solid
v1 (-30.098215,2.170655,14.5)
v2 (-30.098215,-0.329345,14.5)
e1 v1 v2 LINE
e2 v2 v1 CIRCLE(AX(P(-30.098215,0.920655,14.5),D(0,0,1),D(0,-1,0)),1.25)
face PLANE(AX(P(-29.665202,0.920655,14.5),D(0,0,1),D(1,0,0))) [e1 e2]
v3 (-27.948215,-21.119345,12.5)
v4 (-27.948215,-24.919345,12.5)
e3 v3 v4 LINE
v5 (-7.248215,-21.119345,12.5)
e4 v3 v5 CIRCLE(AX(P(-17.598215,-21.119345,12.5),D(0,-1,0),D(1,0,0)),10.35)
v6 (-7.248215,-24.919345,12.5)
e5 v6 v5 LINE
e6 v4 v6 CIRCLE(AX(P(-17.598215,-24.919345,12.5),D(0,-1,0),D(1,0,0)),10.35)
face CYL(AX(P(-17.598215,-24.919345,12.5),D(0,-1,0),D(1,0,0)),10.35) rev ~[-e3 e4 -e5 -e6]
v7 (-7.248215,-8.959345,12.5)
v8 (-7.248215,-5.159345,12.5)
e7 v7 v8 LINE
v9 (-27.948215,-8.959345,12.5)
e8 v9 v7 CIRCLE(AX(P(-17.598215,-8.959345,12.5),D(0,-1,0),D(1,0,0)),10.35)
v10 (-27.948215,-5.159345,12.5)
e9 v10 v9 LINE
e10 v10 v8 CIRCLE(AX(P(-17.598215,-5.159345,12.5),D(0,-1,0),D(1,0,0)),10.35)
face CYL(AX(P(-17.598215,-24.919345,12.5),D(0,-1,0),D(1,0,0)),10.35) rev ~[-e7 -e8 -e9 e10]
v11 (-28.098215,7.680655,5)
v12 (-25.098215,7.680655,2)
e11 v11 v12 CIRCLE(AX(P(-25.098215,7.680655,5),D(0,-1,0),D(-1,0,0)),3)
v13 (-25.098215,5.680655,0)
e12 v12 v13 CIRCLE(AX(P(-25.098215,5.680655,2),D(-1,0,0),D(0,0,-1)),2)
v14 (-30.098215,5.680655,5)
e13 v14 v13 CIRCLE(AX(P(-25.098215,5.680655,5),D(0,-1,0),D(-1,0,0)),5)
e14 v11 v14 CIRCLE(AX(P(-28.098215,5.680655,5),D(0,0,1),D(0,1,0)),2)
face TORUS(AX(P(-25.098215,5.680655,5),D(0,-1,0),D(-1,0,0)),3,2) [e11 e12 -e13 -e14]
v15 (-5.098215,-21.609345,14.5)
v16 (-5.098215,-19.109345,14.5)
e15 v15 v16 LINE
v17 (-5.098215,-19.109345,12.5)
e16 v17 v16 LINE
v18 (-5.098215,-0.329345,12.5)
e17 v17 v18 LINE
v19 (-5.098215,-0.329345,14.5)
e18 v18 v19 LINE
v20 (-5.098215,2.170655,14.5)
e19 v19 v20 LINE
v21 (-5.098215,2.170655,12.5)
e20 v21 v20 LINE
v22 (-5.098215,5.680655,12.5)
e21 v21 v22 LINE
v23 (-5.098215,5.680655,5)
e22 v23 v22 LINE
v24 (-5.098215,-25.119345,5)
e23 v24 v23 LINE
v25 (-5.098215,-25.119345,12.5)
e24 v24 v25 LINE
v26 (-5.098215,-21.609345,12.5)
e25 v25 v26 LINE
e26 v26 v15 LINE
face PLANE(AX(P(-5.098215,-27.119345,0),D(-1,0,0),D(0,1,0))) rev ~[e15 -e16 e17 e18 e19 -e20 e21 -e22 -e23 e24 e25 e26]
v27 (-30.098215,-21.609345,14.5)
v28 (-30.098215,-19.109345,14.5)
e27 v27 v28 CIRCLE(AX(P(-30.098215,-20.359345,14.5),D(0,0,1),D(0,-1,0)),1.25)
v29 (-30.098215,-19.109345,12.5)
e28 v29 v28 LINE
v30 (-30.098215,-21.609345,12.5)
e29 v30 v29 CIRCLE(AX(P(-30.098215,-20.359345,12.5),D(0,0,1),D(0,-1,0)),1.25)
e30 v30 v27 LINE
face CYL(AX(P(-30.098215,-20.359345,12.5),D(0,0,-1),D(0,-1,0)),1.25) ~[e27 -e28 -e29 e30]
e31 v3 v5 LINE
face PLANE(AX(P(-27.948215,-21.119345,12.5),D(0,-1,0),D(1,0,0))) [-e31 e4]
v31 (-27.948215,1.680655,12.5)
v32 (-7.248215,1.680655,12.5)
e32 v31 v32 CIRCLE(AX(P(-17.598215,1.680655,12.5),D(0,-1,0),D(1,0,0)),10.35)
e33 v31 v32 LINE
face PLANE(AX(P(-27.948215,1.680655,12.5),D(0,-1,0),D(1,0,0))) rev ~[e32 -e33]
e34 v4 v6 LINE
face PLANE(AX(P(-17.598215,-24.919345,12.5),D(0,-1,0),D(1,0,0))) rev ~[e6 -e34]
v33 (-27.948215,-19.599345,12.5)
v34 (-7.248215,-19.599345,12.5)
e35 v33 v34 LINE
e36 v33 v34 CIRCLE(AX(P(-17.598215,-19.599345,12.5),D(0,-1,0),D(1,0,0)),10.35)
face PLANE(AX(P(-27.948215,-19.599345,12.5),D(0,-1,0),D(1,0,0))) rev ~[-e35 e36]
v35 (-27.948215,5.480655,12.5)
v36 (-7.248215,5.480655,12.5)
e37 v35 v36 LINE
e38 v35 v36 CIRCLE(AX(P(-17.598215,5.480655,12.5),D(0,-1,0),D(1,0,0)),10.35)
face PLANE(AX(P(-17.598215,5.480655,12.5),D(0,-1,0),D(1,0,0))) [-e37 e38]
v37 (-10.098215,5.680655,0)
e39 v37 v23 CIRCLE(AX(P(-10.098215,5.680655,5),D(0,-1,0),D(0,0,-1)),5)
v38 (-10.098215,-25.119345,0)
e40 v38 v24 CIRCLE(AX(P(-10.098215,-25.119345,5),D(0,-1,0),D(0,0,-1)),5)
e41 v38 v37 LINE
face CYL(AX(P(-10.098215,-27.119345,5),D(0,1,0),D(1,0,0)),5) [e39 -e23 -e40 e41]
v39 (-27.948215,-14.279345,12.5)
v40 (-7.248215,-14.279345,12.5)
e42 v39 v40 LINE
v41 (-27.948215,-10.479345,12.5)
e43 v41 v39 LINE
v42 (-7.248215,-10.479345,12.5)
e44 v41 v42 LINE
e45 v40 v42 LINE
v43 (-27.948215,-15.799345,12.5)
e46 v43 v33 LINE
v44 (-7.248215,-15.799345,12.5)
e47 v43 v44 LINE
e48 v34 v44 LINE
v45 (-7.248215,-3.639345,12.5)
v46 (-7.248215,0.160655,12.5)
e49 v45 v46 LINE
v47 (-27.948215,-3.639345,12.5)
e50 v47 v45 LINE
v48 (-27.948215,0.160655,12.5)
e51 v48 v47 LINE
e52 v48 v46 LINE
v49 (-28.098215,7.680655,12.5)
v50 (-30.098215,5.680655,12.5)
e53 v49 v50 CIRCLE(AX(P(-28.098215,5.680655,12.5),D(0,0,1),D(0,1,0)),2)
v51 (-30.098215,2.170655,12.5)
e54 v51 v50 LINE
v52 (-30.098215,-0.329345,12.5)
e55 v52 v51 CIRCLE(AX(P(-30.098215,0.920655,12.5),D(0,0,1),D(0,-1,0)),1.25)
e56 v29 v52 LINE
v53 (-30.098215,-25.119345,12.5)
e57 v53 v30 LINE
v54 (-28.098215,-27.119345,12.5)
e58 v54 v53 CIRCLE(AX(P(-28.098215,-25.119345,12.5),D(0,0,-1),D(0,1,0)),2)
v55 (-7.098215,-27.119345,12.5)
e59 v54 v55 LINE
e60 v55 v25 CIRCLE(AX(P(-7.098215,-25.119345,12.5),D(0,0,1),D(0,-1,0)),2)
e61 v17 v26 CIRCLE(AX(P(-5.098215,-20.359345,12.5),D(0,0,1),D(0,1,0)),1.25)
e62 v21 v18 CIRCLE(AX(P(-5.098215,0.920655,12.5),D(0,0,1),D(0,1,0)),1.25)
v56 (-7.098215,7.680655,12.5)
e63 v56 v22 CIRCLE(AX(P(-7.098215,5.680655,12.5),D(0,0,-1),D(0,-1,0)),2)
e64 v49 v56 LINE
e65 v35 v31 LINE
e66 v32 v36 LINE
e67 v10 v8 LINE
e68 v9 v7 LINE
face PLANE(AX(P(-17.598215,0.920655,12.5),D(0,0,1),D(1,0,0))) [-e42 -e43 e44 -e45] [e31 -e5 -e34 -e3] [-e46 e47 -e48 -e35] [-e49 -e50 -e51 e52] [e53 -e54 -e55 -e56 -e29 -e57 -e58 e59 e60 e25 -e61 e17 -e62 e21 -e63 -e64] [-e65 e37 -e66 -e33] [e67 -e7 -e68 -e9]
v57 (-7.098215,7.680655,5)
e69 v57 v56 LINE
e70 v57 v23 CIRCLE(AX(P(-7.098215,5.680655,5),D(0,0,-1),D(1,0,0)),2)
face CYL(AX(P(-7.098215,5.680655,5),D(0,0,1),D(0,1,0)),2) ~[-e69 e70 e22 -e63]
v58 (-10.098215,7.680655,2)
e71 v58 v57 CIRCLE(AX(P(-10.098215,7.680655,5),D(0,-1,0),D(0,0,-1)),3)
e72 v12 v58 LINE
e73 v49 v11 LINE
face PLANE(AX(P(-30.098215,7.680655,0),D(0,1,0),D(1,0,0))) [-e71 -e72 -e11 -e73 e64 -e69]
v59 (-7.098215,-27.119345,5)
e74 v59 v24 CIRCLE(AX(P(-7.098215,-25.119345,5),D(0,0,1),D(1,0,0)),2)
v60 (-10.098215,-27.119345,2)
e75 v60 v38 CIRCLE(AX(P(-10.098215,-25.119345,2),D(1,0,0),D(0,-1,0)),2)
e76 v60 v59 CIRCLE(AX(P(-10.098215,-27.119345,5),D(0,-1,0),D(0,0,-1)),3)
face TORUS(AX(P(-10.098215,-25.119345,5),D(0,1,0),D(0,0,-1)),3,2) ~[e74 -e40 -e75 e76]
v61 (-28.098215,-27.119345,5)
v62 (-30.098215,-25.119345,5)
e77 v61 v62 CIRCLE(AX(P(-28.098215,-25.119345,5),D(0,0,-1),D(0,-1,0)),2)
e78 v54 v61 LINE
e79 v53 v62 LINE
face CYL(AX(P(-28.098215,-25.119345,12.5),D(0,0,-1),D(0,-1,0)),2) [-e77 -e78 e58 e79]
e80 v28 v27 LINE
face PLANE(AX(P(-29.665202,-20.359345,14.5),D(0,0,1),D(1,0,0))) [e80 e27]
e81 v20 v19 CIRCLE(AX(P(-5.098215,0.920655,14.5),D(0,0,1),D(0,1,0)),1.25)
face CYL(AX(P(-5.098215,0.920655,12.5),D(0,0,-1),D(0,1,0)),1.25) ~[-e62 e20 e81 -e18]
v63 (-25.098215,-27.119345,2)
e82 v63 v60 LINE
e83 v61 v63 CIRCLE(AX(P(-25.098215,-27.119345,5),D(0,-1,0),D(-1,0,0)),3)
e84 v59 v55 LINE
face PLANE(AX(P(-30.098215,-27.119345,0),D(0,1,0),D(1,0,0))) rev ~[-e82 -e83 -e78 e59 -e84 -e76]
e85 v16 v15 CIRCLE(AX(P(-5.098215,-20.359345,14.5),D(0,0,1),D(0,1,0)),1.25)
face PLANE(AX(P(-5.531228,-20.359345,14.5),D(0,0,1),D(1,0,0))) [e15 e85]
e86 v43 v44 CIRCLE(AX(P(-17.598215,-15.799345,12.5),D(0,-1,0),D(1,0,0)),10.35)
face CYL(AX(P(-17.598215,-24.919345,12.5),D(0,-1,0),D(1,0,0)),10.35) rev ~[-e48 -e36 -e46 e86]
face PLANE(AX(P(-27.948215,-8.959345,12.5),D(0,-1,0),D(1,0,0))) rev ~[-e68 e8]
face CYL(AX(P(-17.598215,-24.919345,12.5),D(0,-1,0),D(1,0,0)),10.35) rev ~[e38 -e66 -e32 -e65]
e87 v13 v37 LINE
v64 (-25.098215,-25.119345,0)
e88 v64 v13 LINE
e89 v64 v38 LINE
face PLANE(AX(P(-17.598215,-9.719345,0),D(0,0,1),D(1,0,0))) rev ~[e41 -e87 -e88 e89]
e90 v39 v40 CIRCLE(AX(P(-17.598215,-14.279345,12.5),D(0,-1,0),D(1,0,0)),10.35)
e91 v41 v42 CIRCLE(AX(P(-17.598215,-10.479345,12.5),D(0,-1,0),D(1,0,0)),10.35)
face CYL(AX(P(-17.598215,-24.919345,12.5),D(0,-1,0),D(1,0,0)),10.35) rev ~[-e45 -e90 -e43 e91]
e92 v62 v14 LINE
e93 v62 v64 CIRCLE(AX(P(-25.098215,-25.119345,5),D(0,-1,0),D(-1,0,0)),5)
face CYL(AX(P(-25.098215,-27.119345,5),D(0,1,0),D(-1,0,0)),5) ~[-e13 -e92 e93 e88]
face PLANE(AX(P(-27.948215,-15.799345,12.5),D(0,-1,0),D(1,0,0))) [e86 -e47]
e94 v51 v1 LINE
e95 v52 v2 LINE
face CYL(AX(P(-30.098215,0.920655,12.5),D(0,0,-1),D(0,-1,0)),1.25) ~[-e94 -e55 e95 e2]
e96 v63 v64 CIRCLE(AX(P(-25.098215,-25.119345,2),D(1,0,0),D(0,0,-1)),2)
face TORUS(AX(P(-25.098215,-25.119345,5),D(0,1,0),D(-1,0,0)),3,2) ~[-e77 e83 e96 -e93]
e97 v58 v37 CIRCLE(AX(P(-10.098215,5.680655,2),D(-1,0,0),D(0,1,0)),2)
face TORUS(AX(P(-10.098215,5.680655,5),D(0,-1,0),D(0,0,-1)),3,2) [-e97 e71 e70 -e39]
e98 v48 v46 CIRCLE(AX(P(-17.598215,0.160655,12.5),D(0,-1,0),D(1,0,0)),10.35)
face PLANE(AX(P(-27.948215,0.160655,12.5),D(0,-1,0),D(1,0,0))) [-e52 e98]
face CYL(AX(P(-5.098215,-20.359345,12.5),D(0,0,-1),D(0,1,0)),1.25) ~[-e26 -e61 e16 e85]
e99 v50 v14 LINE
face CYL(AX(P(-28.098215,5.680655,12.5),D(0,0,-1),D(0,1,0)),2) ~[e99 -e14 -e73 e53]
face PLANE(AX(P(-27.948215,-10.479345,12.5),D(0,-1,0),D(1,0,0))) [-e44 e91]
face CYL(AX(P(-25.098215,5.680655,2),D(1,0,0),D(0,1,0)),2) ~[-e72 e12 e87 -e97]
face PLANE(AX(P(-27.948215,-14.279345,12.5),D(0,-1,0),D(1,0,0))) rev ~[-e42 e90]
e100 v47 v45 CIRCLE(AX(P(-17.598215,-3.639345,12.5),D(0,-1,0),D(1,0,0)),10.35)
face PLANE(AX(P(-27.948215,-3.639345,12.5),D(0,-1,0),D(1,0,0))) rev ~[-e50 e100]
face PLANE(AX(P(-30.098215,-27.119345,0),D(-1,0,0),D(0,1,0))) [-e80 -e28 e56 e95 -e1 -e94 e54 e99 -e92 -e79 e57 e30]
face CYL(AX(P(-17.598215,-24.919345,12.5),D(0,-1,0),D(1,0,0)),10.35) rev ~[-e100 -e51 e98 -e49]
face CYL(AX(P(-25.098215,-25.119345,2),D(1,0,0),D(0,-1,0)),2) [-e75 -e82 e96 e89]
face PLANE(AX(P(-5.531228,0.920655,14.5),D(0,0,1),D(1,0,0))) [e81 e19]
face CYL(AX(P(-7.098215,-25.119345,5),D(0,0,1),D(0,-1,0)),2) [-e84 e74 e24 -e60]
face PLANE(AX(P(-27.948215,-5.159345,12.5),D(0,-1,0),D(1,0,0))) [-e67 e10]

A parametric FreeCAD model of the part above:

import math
import FreeCAD as App
import Part
import Sketcher
Q = App.Units.Quantity


def edges_at(feature, points):
    """Names of the edges that pass closest to the given points."""
    edges = feature.Shape.Edges
    near = lambda p: min(range(len(edges)), key=lambda i: edges[i].distToShape(Part.Vertex(*p))[0])
    return sorted({f"Edge{near(p) + 1}" for p in points})


def add_polygon(sketch, points):
    """Adds a closed chain of lines whose ends are joined by coincident constraints."""
    first, n = sketch.GeometryCount, len(points)
    for a, b in zip(points, points[1:] + points[:1]):
        sketch.addGeometry(Part.LineSegment(App.Vector(*a, 0), App.Vector(*b, 0)), False)
    for i in range(n):
        sketch.addConstraint(Sketcher.Constraint("Coincident", first + i, 2, first + (i + 1) % n, 1))

doc = App.newDocument("Part")
body = doc.addObject("PartDesign::Body", "Body")

sketch1 = body.newObject("Sketcher::SketchObject", "Sketch")
sketch1.AttachmentSupport = (doc.getObject("XY_Plane"), [""])
sketch1.MapMode = "FlatFace"
add_polygon(sketch1, [(-30, 8), (-30, -27), (-5, -27), (-5, 8)])
sketch1.addConstraint([
    Sketcher.Constraint("Vertical", 0),
    Sketcher.Constraint("Horizontal", 1),
    Sketcher.Constraint("Vertical", 2),
    Sketcher.Constraint("Horizontal", 3),
    Sketcher.Constraint("DistanceX", 1, 1, 1, 2, Q("25 mm")),
    Sketcher.Constraint("DistanceY", 0, 2, 0, 1, Q("34.8 mm")),
    Sketcher.Constraint("DistanceX", 0, 2, -1, 1, Q("30.098215 mm")),
    Sketcher.Constraint("DistanceY", 0, 2, -1, 1, Q("27.119345 mm")),
])
pad1 = body.newObject("PartDesign::Pad", "Pad")
pad1.Profile = sketch1
pad1.Length = 12.5

sketch2 = body.newObject("Sketcher::SketchObject", "Sketch001")
sketch2.AttachmentSupport = (doc.getObject("XZ_Plane"), [""])
sketch2.MapMode = "FlatFace"
sketch2.AttachmentOffset = App.Placement(App.Vector(0, 0, 24.919345), App.Rotation())
sketch2.addGeometry(Part.Circle(App.Vector(-18, 12, 0), App.Vector(0, 0, 1), 10), False)
sketch2.addConstraint([
    Sketcher.Constraint("Diameter", 0, Q("20.7 mm")),
    Sketcher.Constraint("DistanceY", -1, 1, 0, 3, Q("12.5 mm")),
    Sketcher.Constraint("DistanceX", 0, 3, -1, 1, Q("17.598215 mm")),
])
pocket1 = body.newObject("PartDesign::Pocket", "Pocket")
pocket1.Profile = sketch2
pocket1.Length = 30.4

sketch3 = body.newObject("Sketcher::SketchObject", "Sketch002")
sketch3.AttachmentSupport = (doc.getObject("XY_Plane"), [""])
sketch3.MapMode = "FlatFace"
sketch3.AttachmentOffset = App.Placement(App.Vector(0, 0, 12.5), App.Rotation())
add_polygon(sketch3, [(-27.9, 1.7), (-27.9, 0.2), (-7.2, 0.2), (-7.2, 1.7)])
add_polygon(sketch3, [(-27.9, -3.6), (-27.9, -5.2), (-7.2, -5.2), (-7.2, -3.6)])
add_polygon(sketch3, [(-27.9, -9), (-27.9, -10.5), (-7.2, -10.5), (-7.2, -9)])
add_polygon(sketch3, [(-27.9, -14.3), (-27.9, -15.8), (-7.2, -15.8), (-7.2, -14.3)])
add_polygon(sketch3, [(-27.9, -19.6), (-27.9, -21.1), (-7.2, -21.1), (-7.2, -19.6)])
sketch3.addConstraint([
    Sketcher.Constraint("Vertical", 0),
    Sketcher.Constraint("Horizontal", 1),
    Sketcher.Constraint("Vertical", 2),
    Sketcher.Constraint("Horizontal", 3),
    Sketcher.Constraint("Vertical", 4),
    Sketcher.Constraint("Horizontal", 5),
    Sketcher.Constraint("Vertical", 6),
    Sketcher.Constraint("Horizontal", 7),
    Sketcher.Constraint("Vertical", 8),
    Sketcher.Constraint("Horizontal", 9),
    Sketcher.Constraint("Vertical", 10),
    Sketcher.Constraint("Horizontal", 11),
    Sketcher.Constraint("Vertical", 12),
    Sketcher.Constraint("Horizontal", 13),
    Sketcher.Constraint("Vertical", 14),
    Sketcher.Constraint("Horizontal", 15),
    Sketcher.Constraint("Vertical", 16),
    Sketcher.Constraint("Horizontal", 17),
    Sketcher.Constraint("Vertical", 18),
    Sketcher.Constraint("Horizontal", 19),
    Sketcher.Constraint("Vertical", 3, 2, 4, 2),
    Sketcher.Constraint("Vertical", 2, 2, 5, 2),
    Sketcher.Constraint("Vertical", 7, 2, 8, 2),
    Sketcher.Constraint("Vertical", 6, 2, 9, 2),
    Sketcher.Constraint("Vertical", 11, 2, 12, 2),
    Sketcher.Constraint("Vertical", 10, 2, 13, 2),
    Sketcher.Constraint("Vertical", 15, 2, 16, 2),
    Sketcher.Constraint("Vertical", 14, 2, 17, 2),
    Sketcher.Constraint("Equal", 2, 4),
    Sketcher.Constraint("Equal", 6, 8),
    Sketcher.Constraint("Equal", 10, 12),
    Sketcher.Constraint("Equal", 14, 16),
    Sketcher.Constraint("DistanceX", 1, 1, 1, 2, Q("20.7 mm")),
    Sketcher.Constraint("DistanceY", 0, 2, 0, 1, Q("1.52 mm")),
    Sketcher.Constraint("DistanceY", 6, 2, 1, 2, Q("3.8 mm")),
    Sketcher.Constraint("DistanceY", 10, 2, 5, 2, Q("3.8 mm")),
    Sketcher.Constraint("DistanceY", 14, 2, 9, 2, Q("3.8 mm")),
    Sketcher.Constraint("DistanceY", 18, 2, 13, 2, Q("3.8 mm")),
    Sketcher.Constraint("DistanceX", 0, 2, -1, 1, Q("27.948215 mm")),
    Sketcher.Constraint("DistanceY", -1, 1, 0, 2, Q("0.160655 mm")),
])
pad2 = body.newObject("PartDesign::Pad", "Pad001")
pad2.Profile = sketch3
pad2.Length = 10.6
pad2.Reversed = True
doc.recompute()

fillet = body.newObject("PartDesign::Fillet", "Fillet")
fillet.Base = (pad2, edges_at(pad2, [(-5.098, -9.719, 0), (-30.098, -9.719, 0)]))
fillet.Radius = 5
doc.recompute()

fillet2 = body.newObject("PartDesign::Fillet", "Fillet001")
fillet2.Base = (fillet, edges_at(fillet, [(-5.098, -27.119, 8.75), (-5.098, 7.681, 8.75)]))
fillet2.Radius = 2

sketch4 = body.newObject("Sketcher::SketchObject", "Sketch003")
sketch4.AttachmentSupport = (doc.getObject("XY_Plane"), [""])
sketch4.MapMode = "FlatFace"
sketch4.AttachmentOffset = App.Placement(App.Vector(0, 0, 12.5), App.Rotation())
sketch4.addGeometry([
    Part.LineSegment(App.Vector(-30.1, 2.2, 0), App.Vector(-30.1, -0.3, 0)),
    Part.ArcOfCircle(Part.Circle(App.Vector(-30.1, 0.9, 0), App.Vector(0, 0, 1), 1.2), math.radians(-90), math.radians(90)),
    Part.LineSegment(App.Vector(-5.1, -0.3, 0), App.Vector(-5.1, 2.2, 0)),
    Part.ArcOfCircle(Part.Circle(App.Vector(-5.1, 0.9, 0), App.Vector(0, 0, 1), 1.2), math.radians(90), math.radians(270)),
    Part.ArcOfCircle(Part.Circle(App.Vector(-5.1, -20.4, 0), App.Vector(0, 0, 1), 1.2), math.radians(90), math.radians(270)),
    Part.LineSegment(App.Vector(-5.1, -21.6, 0), App.Vector(-5.1, -19.1, 0)),
    Part.ArcOfCircle(Part.Circle(App.Vector(-30.1, -20.4, 0), App.Vector(0, 0, 1), 1.2), math.radians(-90), math.radians(90)),
    Part.LineSegment(App.Vector(-30.1, -19.1, 0), App.Vector(-30.1, -21.6, 0)),
], False)
sketch4.addConstraint([
    Sketcher.Constraint("Coincident", 0, 1, 1, 2),
    Sketcher.Constraint("Coincident", 1, 1, 0, 2),
    Sketcher.Constraint("Coincident", 2, 1, 3, 2),
    Sketcher.Constraint("Coincident", 3, 1, 2, 2),
    Sketcher.Constraint("Coincident", 4, 1, 5, 2),
    Sketcher.Constraint("Coincident", 5, 1, 4, 2),
    Sketcher.Constraint("Coincident", 6, 1, 7, 2),
    Sketcher.Constraint("Coincident", 7, 1, 6, 2),
    Sketcher.Constraint("Vertical", 0),
    Sketcher.Constraint("Vertical", 2),
    Sketcher.Constraint("Vertical", 5),
    Sketcher.Constraint("Vertical", 7),
    Sketcher.Constraint("Equal", 1, 3),
    Sketcher.Constraint("Equal", 3, 4),
    Sketcher.Constraint("Equal", 4, 6),
    Sketcher.Constraint("Horizontal", 1, 3, 3, 3),
    Sketcher.Constraint("Horizontal", 4, 3, 6, 3),
    Sketcher.Constraint("Vertical", 3, 3, 4, 3),
    Sketcher.Constraint("Vertical", 1, 3, 6, 3),
    Sketcher.Constraint("Vertical", 6, 3, 0, 1),
    Sketcher.Constraint("Vertical", 4, 3, 2, 1),
    Sketcher.Constraint("Vertical", 3, 1, 4, 1),
    Sketcher.Constraint("Vertical", 1, 1, 6, 1),
    Sketcher.Constraint("Radius", 1, Q("1.25 mm")),
    Sketcher.Constraint("DistanceX", 1, 3, 3, 3, Q("25 mm")),
    Sketcher.Constraint("DistanceY", 4, 3, 3, 3, Q("21.28 mm")),
    Sketcher.Constraint("DistanceX", 1, 3, -1, 1, Q("30.098215 mm")),
    Sketcher.Constraint("DistanceY", -1, 1, 1, 3, Q("0.920655 mm")),
])
pad3 = body.newObject("PartDesign::Pad", "Pad002")
pad3.Profile = sketch4
pad3.Length = 2

doc.recompute()
